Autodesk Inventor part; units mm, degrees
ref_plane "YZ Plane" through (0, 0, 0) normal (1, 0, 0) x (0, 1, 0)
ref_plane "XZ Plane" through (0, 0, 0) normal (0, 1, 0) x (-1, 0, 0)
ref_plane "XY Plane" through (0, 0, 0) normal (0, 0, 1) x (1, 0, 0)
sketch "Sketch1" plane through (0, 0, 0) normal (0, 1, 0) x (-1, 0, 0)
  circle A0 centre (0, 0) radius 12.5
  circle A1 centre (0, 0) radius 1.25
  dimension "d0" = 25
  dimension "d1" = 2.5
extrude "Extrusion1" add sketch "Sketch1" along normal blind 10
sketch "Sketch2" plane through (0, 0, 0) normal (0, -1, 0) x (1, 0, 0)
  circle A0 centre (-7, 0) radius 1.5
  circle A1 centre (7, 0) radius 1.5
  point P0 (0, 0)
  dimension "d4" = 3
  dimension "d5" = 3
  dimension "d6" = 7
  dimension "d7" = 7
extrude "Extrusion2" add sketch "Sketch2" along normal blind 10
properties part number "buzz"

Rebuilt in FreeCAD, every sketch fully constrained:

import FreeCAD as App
import Part
import Sketcher

V = App.Vector
Q = App.Units.Quantity

doc = App.newDocument("Part")
params = doc.addObject("Spreadsheet::Sheet", "Params")
for row, (alias, value) in enumerate([
    ("sketch1_diameter", "25 mm"),
    ("sketch1_diameter2", "2.5 mm"),
    ("pad1_length", "10 mm"),
    ("sketch2_diameter", "3 mm"),
    ("pad2_length", "10 mm"),
], start=1):
    params.set(f"A{row}", alias)
    params.set(f"B{row}", "=" + value)
    params.setAlias(f"B{row}", alias)

body = doc.addObject("PartDesign::Body", "Body")

# Sketch on XZ plane
sketch1 = body.newObject("Sketcher::SketchObject", "Sketch")
sketch1.AttachmentSupport = (doc.getObject("XZ_Plane"), [""])
sketch1.MapMode = "FlatFace"
sketch1.addGeometry([
    Part.Circle(V(0, 0, 0), V(0, 0, 1), 12.5),
    Part.Circle(V(0, 0, 0), V(0, 0, 1), 1.2),
], False)
sketch1.addConstraint([
    Sketcher.Constraint("Coincident", 0, 3, -1, 1),
    Sketcher.Constraint("Coincident", 1, 3, -1, 1),
    Sketcher.Constraint("Diameter", 0, Q("25 mm")),
    Sketcher.Constraint("Diameter", 1, Q("2.5 mm")),
])
sketch1.setExpression("Constraints[2]", "Params.sketch1_diameter")
sketch1.setExpression("Constraints[3]", "Params.sketch1_diameter2")
pad1 = body.newObject("PartDesign::Pad", "Pad")
pad1.Profile = sketch1
pad1.setExpression("Length", "Params.pad1_length")
pad1.Reversed = True

# Sketch on XZ plane
sketch2 = body.newObject("Sketcher::SketchObject", "Sketch001")
sketch2.AttachmentSupport = (doc.getObject("XZ_Plane"), [""])
sketch2.MapMode = "FlatFace"
sketch2.addGeometry([
    Part.Circle(V(-7, 0, 0), V(0, 0, 1), 1.5),
    Part.Circle(V(7, 0, 0), V(0, 0, 1), 1.5),
], False)
sketch2.addConstraint([
    Sketcher.Constraint("Equal", 0, 1),
    Sketcher.Constraint("Symmetric", 0, 3, 1, 3, -1, 1),
    Sketcher.Constraint("PointOnObject", 0, 3, -1),
    Sketcher.Constraint("Diameter", 0, Q("3 mm")),
    Sketcher.Constraint("DistanceX", 0, 3, -1, 1, Q("7 mm")),
])
sketch2.setExpression("Constraints[3]", "Params.sketch2_diameter")
pad2 = body.newObject("PartDesign::Pad", "Pad001")
pad2.Profile = sketch2
pad2.setExpression("Length", "Params.pad2_length")

doc.recompute()
